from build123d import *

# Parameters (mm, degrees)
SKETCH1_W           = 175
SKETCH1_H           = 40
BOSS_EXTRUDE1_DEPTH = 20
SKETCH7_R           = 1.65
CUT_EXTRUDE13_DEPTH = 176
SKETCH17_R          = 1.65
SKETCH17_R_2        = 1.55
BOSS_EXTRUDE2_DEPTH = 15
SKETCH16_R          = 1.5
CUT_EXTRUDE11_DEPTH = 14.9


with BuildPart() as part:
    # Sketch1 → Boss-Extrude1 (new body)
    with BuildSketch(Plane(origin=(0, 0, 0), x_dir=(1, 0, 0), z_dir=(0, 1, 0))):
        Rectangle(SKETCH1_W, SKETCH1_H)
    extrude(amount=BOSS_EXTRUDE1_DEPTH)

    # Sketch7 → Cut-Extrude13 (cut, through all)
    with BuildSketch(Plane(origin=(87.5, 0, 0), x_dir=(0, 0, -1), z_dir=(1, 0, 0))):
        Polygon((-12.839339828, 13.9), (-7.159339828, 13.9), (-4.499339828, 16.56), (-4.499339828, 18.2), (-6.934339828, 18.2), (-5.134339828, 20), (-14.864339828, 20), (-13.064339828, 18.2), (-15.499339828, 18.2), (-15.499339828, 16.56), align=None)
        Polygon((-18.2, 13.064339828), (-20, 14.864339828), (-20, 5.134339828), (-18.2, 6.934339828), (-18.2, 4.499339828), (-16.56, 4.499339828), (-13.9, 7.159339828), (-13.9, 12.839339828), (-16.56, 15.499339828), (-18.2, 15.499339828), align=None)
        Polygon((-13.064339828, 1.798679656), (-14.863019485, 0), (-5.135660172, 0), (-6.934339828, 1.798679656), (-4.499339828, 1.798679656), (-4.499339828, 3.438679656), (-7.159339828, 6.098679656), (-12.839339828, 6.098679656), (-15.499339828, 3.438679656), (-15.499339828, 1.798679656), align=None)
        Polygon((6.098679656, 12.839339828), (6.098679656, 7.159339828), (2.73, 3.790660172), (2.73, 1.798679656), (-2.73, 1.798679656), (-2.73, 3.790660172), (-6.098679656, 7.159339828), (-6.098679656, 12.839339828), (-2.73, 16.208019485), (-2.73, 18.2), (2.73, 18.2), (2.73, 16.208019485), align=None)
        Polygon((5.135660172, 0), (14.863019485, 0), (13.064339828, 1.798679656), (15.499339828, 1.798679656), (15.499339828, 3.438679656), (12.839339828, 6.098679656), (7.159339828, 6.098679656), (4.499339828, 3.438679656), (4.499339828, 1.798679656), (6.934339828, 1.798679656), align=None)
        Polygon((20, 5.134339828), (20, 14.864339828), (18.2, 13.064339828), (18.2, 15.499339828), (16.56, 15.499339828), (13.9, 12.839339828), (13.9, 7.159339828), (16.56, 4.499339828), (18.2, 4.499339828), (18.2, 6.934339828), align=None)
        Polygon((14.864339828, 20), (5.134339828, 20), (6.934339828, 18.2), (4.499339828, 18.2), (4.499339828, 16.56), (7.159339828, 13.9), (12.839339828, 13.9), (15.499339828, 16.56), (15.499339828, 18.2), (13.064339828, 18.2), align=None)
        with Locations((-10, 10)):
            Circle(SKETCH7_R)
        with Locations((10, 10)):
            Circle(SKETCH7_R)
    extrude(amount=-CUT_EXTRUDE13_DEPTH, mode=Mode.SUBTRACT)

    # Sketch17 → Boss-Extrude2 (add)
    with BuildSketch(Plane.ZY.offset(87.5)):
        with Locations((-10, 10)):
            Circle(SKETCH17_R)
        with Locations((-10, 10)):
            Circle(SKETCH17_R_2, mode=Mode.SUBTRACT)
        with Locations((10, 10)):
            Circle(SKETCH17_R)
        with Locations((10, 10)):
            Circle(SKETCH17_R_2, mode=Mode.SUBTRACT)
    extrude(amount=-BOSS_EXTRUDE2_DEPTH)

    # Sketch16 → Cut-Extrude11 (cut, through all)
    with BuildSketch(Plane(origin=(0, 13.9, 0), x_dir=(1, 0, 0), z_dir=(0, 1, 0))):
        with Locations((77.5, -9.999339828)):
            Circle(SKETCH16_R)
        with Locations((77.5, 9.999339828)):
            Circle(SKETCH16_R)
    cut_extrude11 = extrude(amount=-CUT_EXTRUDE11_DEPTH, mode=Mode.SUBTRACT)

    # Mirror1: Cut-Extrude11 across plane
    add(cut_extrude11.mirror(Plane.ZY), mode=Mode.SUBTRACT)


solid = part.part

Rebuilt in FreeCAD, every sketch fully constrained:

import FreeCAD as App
import Part
import Sketcher

V = App.Vector
Q = App.Units.Quantity

doc = App.newDocument("Part")
body = doc.addObject("PartDesign::Body", "Body")

sketch1 = body.newObject("Sketcher::SketchObject", "Sketch")
sketch1.AttachmentSupport = (doc.getObject("XZ_Plane"), [""])
sketch1.MapMode = "FlatFace"
sketch1.addGeometry(Part.LineSegment(V(-88, -20, 0), V(-88, 20, 0)), False)
sketch1.addGeometry(Part.LineSegment(V(-88, 20, 0), V(88, 20, 0)), False)
sketch1.addGeometry(Part.LineSegment(V(88, 20, 0), V(88, -20, 0)), False)
sketch1.addGeometry(Part.LineSegment(V(88, -20, 0), V(-88, -20, 0)), False)
sketch1.addConstraint(Sketcher.Constraint("Coincident", 0, 2, 1, 1))
sketch1.addConstraint(Sketcher.Constraint("Coincident", 1, 2, 2, 1))
sketch1.addConstraint(Sketcher.Constraint("Coincident", 2, 2, 3, 1))
sketch1.addConstraint(Sketcher.Constraint("Coincident", 3, 2, 0, 1))
sketch1.addConstraint(Sketcher.Constraint("Vertical", 0))
sketch1.addConstraint(Sketcher.Constraint("Horizontal", 1))
sketch1.addConstraint(Sketcher.Constraint("Vertical", 2))
sketch1.addConstraint(Sketcher.Constraint("Horizontal", 3))
sketch1.addConstraint(Sketcher.Constraint("Symmetric", 0, 2, 2, 2, -1, 1))
sketch1.addConstraint(Sketcher.Constraint("DistanceX", 1, 1, 1, 2, Q("175 mm")))
sketch1.addConstraint(Sketcher.Constraint("DistanceY", 0, 1, 0, 2, Q("40 mm")))
pad1 = body.newObject("PartDesign::Pad", "Pad")
pad1.Profile = sketch1
pad1.Length = 20
pad1.Reversed = True

sketch2 = body.newObject("Sketcher::SketchObject", "Sketch001")
sketch2.AttachmentSupport = (doc.getObject("YZ_Plane"), [""])
sketch2.MapMode = "FlatFace"
sketch2.AttachmentOffset = App.Placement(V(0, 0, 87.5), App.Rotation())
sketch2.addGeometry(Part.LineSegment(V(13.9, 12.8, 0), V(13.9, 7.2, 0)), False)
sketch2.addGeometry(Part.LineSegment(V(13.9, 7.2, 0), V(16.6, 4.5, 0)), False)
sketch2.addGeometry(Part.LineSegment(V(16.6, 4.5, 0), V(18.2, 4.5, 0)), False)
sketch2.addGeometry(Part.LineSegment(V(18.2, 4.5, 0), V(18.2, 6.9, 0)), False)
sketch2.addGeometry(Part.LineSegment(V(18.2, 6.9, 0), V(20, 5.1, 0)), False)
sketch2.addGeometry(Part.LineSegment(V(20, 5.1, 0), V(20, 14.9, 0)), False)
sketch2.addGeometry(Part.LineSegment(V(20, 14.9, 0), V(18.2, 13.1, 0)), False)
sketch2.addGeometry(Part.LineSegment(V(18.2, 13.1, 0), V(18.2, 15.5, 0)), False)
sketch2.addGeometry(Part.LineSegment(V(18.2, 15.5, 0), V(16.6, 15.5, 0)), False)
sketch2.addGeometry(Part.LineSegment(V(16.6, 15.5, 0), V(13.9, 12.8, 0)), False)
sketch2.addGeometry(Part.LineSegment(V(13.1, 18.2, 0), V(14.9, 20, 0)), False)
sketch2.addGeometry(Part.LineSegment(V(14.9, 20, 0), V(5.1, 20, 0)), False)
sketch2.addGeometry(Part.LineSegment(V(5.1, 20, 0), V(6.9, 18.2, 0)), False)
sketch2.addGeometry(Part.LineSegment(V(6.9, 18.2, 0), V(4.5, 18.2, 0)), False)
sketch2.addGeometry(Part.LineSegment(V(4.5, 18.2, 0), V(4.5, 16.6, 0)), False)
sketch2.addGeometry(Part.LineSegment(V(4.5, 16.6, 0), V(7.2, 13.9, 0)), False)
sketch2.addGeometry(Part.LineSegment(V(7.2, 13.9, 0), V(12.8, 13.9, 0)), False)
sketch2.addGeometry(Part.LineSegment(V(12.8, 13.9, 0), V(15.5, 16.6, 0)), False)
sketch2.addGeometry(Part.LineSegment(V(15.5, 16.6, 0), V(15.5, 18.2, 0)), False)
sketch2.addGeometry(Part.LineSegment(V(15.5, 18.2, 0), V(13.1, 18.2, 0)), False)
sketch2.addGeometry(Part.LineSegment(V(1.8, 13.1, 0), V(0, 14.9, 0)), False)
sketch2.addGeometry(Part.LineSegment(V(0, 14.9, 0), V(0, 5.1, 0)), False)
sketch2.addGeometry(Part.LineSegment(V(0, 5.1, 0), V(1.8, 6.9, 0)), False)
sketch2.addGeometry(Part.LineSegment(V(1.8, 6.9, 0), V(1.8, 4.5, 0)), False)
sketch2.addGeometry(Part.LineSegment(V(1.8, 4.5, 0), V(3.4, 4.5, 0)), False)
sketch2.addGeometry(Part.LineSegment(V(3.4, 4.5, 0), V(6.1, 7.2, 0)), False)
sketch2.addGeometry(Part.LineSegment(V(6.1, 7.2, 0), V(6.1, 12.8, 0)), False)
sketch2.addGeometry(Part.LineSegment(V(6.1, 12.8, 0), V(3.4, 15.5, 0)), False)
sketch2.addGeometry(Part.LineSegment(V(3.4, 15.5, 0), V(1.8, 15.5, 0)), False)
sketch2.addGeometry(Part.LineSegment(V(1.8, 15.5, 0), V(1.8, 13.1, 0)), False)
sketch2.addGeometry(Part.LineSegment(V(7.2, -6.1, 0), V(12.8, -6.1, 0)), False)
sketch2.addGeometry(Part.LineSegment(V(12.8, -6.1, 0), V(16.2, -2.7, 0)), False)
sketch2.addGeometry(Part.LineSegment(V(16.2, -2.7, 0), V(18.2, -2.7, 0)), False)
sketch2.addGeometry(Part.LineSegment(V(18.2, -2.7, 0), V(18.2, 2.7, 0)), False)
sketch2.addGeometry(Part.LineSegment(V(18.2, 2.7, 0), V(16.2, 2.7, 0)), False)
sketch2.addGeometry(Part.LineSegment(V(16.2, 2.7, 0), V(12.8, 6.1, 0)), False)
sketch2.addGeometry(Part.LineSegment(V(12.8, 6.1, 0), V(7.2, 6.1, 0)), False)
sketch2.addGeometry(Part.LineSegment(V(7.2, 6.1, 0), V(3.8, 2.7, 0)), False)
sketch2.addGeometry(Part.LineSegment(V(3.8, 2.7, 0), V(1.8, 2.7, 0)), False)
sketch2.addGeometry(Part.LineSegment(V(1.8, 2.7, 0), V(1.8, -2.7, 0)), False)
sketch2.addGeometry(Part.LineSegment(V(1.8, -2.7, 0), V(3.8, -2.7, 0)), False)
sketch2.addGeometry(Part.LineSegment(V(3.8, -2.7, 0), V(7.2, -6.1, 0)), False)
sketch2.addGeometry(Part.LineSegment(V(0, -5.1, 0), V(0, -14.9, 0)), False)
sketch2.addGeometry(Part.LineSegment(V(0, -14.9, 0), V(1.8, -13.1, 0)), False)
sketch2.addGeometry(Part.LineSegment(V(1.8, -13.1, 0), V(1.8, -15.5, 0)), False)
sketch2.addGeometry(Part.LineSegment(V(1.8, -15.5, 0), V(3.4, -15.5, 0)), False)
sketch2.addGeometry(Part.LineSegment(V(3.4, -15.5, 0), V(6.1, -12.8, 0)), False)
sketch2.addGeometry(Part.LineSegment(V(6.1, -12.8, 0), V(6.1, -7.2, 0)), False)
sketch2.addGeometry(Part.LineSegment(V(6.1, -7.2, 0), V(3.4, -4.5, 0)), False)
sketch2.addGeometry(Part.LineSegment(V(3.4, -4.5, 0), V(1.8, -4.5, 0)), False)
sketch2.addGeometry(Part.LineSegment(V(1.8, -4.5, 0), V(1.8, -6.9, 0)), False)
sketch2.addGeometry(Part.LineSegment(V(1.8, -6.9, 0), V(0, -5.1, 0)), False)
sketch2.addGeometry(Part.LineSegment(V(5.1, -20, 0), V(14.9, -20, 0)), False)
sketch2.addGeometry(Part.LineSegment(V(14.9, -20, 0), V(13.1, -18.2, 0)), False)
sketch2.addGeometry(Part.LineSegment(V(13.1, -18.2, 0), V(15.5, -18.2, 0)), False)
sketch2.addGeometry(Part.LineSegment(V(15.5, -18.2, 0), V(15.5, -16.6, 0)), False)
sketch2.addGeometry(Part.LineSegment(V(15.5, -16.6, 0), V(12.8, -13.9, 0)), False)
sketch2.addGeometry(Part.LineSegment(V(12.8, -13.9, 0), V(7.2, -13.9, 0)), False)
sketch2.addGeometry(Part.LineSegment(V(7.2, -13.9, 0), V(4.5, -16.6, 0)), False)
sketch2.addGeometry(Part.LineSegment(V(4.5, -16.6, 0), V(4.5, -18.2, 0)), False)
sketch2.addGeometry(Part.LineSegment(V(4.5, -18.2, 0), V(6.9, -18.2, 0)), False)
sketch2.addGeometry(Part.LineSegment(V(6.9, -18.2, 0), V(5.1, -20, 0)), False)
sketch2.addGeometry(Part.LineSegment(V(20, -14.9, 0), V(20, -5.1, 0)), False)
sketch2.addGeometry(Part.LineSegment(V(20, -5.1, 0), V(18.2, -6.9, 0)), False)
sketch2.addGeometry(Part.LineSegment(V(18.2, -6.9, 0), V(18.2, -4.5, 0)), False)
sketch2.addGeometry(Part.LineSegment(V(18.2, -4.5, 0), V(16.6, -4.5, 0)), False)
sketch2.addGeometry(Part.LineSegment(V(16.6, -4.5, 0), V(13.9, -7.2, 0)), False)
sketch2.addGeometry(Part.LineSegment(V(13.9, -7.2, 0), V(13.9, -12.8, 0)), False)
sketch2.addGeometry(Part.LineSegment(V(13.9, -12.8, 0), V(16.6, -15.5, 0)), False)
sketch2.addGeometry(Part.LineSegment(V(16.6, -15.5, 0), V(18.2, -15.5, 0)), False)
sketch2.addGeometry(Part.LineSegment(V(18.2, -15.5, 0), V(18.2, -13.1, 0)), False)
sketch2.addGeometry(Part.LineSegment(V(18.2, -13.1, 0), V(20, -14.9, 0)), False)
sketch2.addGeometry(Part.Circle(V(10, 10, 0), V(0, 0, 1), 1.6), False)
sketch2.addGeometry(Part.Circle(V(10, -10, 0), V(0, 0, 1), 1.6), False)
sketch2.addConstraint(Sketcher.Constraint("Coincident", 0, 2, 1, 1))
sketch2.addConstraint(Sketcher.Constraint("Coincident", 1, 2, 2, 1))
sketch2.addConstraint(Sketcher.Constraint("Coincident", 2, 2, 3, 1))
sketch2.addConstraint(Sketcher.Constraint("Coincident", 3, 2, 4, 1))
sketch2.addConstraint(Sketcher.Constraint("Coincident", 4, 2, 5, 1))
sketch2.addConstraint(Sketcher.Constraint("Coincident", 5, 2, 6, 1))
sketch2.addConstraint(Sketcher.Constraint("Coincident", 6, 2, 7, 1))
sketch2.addConstraint(Sketcher.Constraint("Coincident", 7, 2, 8, 1))
sketch2.addConstraint(Sketcher.Constraint("Coincident", 8, 2, 9, 1))
sketch2.addConstraint(Sketcher.Constraint("Coincident", 9, 2, 0, 1))
sketch2.addConstraint(Sketcher.Constraint("Coincident", 10, 2, 11, 1))
sketch2.addConstraint(Sketcher.Constraint("Coincident", 11, 2, 12, 1))
sketch2.addConstraint(Sketcher.Constraint("Coincident", 12, 2, 13, 1))
sketch2.addConstraint(Sketcher.Constraint("Coincident", 13, 2, 14, 1))
sketch2.addConstraint(Sketcher.Constraint("Coincident", 14, 2, 15, 1))
sketch2.addConstraint(Sketcher.Constraint("Coincident", 15, 2, 16, 1))
sketch2.addConstraint(Sketcher.Constraint("Coincident", 16, 2, 17, 1))
sketch2.addConstraint(Sketcher.Constraint("Coincident", 17, 2, 18, 1))
sketch2.addConstraint(Sketcher.Constraint("Coincident", 18, 2, 19, 1))
sketch2.addConstraint(Sketcher.Constraint("Coincident", 19, 2, 10, 1))
sketch2.addConstraint(Sketcher.Constraint("Coincident", 20, 2, 21, 1))
sketch2.addConstraint(Sketcher.Constraint("Coincident", 21, 2, 22, 1))
sketch2.addConstraint(Sketcher.Constraint("Coincident", 22, 2, 23, 1))
sketch2.addConstraint(Sketcher.Constraint("Coincident", 23, 2, 24, 1))
sketch2.addConstraint(Sketcher.Constraint("Coincident", 24, 2, 25, 1))
sketch2.addConstraint(Sketcher.Constraint("Coincident", 25, 2, 26, 1))
sketch2.addConstraint(Sketcher.Constraint("Coincident", 26, 2, 27, 1))
sketch2.addConstraint(Sketcher.Constraint("Coincident", 27, 2, 28, 1))
sketch2.addConstraint(Sketcher.Constraint("Coincident", 28, 2, 29, 1))
sketch2.addConstraint(Sketcher.Constraint("Coincident", 29, 2, 20, 1))
sketch2.addConstraint(Sketcher.Constraint("Coincident", 30, 2, 31, 1))
sketch2.addConstraint(Sketcher.Constraint("Coincident", 31, 2, 32, 1))
sketch2.addConstraint(Sketcher.Constraint("Coincident", 32, 2, 33, 1))
sketch2.addConstraint(Sketcher.Constraint("Coincident", 33, 2, 34, 1))
sketch2.addConstraint(Sketcher.Constraint("Coincident", 34, 2, 35, 1))
sketch2.addConstraint(Sketcher.Constraint("Coincident", 35, 2, 36, 1))
sketch2.addConstraint(Sketcher.Constraint("Coincident", 36, 2, 37, 1))
sketch2.addConstraint(Sketcher.Constraint("Coincident", 37, 2, 38, 1))
sketch2.addConstraint(Sketcher.Constraint("Coincident", 38, 2, 39, 1))
sketch2.addConstraint(Sketcher.Constraint("Coincident", 39, 2, 40, 1))
sketch2.addConstraint(Sketcher.Constraint("Coincident", 40, 2, 41, 1))
sketch2.addConstraint(Sketcher.Constraint("Coincident", 41, 2, 30, 1))
sketch2.addConstraint(Sketcher.Constraint("Coincident", 42, 2, 43, 1))
sketch2.addConstraint(Sketcher.Constraint("Coincident", 43, 2, 44, 1))
sketch2.addConstraint(Sketcher.Constraint("Coincident", 44, 2, 45, 1))
sketch2.addConstraint(Sketcher.Constraint("Coincident", 45, 2, 46, 1))
sketch2.addConstraint(Sketcher.Constraint("Coincident", 46, 2, 47, 1))
sketch2.addConstraint(Sketcher.Constraint("Coincident", 47, 2, 48, 1))
sketch2.addConstraint(Sketcher.Constraint("Coincident", 48, 2, 49, 1))
sketch2.addConstraint(Sketcher.Constraint("Coincident", 49, 2, 50, 1))
sketch2.addConstraint(Sketcher.Constraint("Coincident", 50, 2, 51, 1))
sketch2.addConstraint(Sketcher.Constraint("Coincident", 51, 2, 42, 1))
sketch2.addConstraint(Sketcher.Constraint("Coincident", 52, 2, 53, 1))
sketch2.addConstraint(Sketcher.Constraint("Coincident", 53, 2, 54, 1))
sketch2.addConstraint(Sketcher.Constraint("Coincident", 54, 2, 55, 1))
sketch2.addConstraint(Sketcher.Constraint("Coincident", 55, 2, 56, 1))
sketch2.addConstraint(Sketcher.Constraint("Coincident", 56, 2, 57, 1))
sketch2.addConstraint(Sketcher.Constraint("Coincident", 57, 2, 58, 1))
sketch2.addConstraint(Sketcher.Constraint("Coincident", 58, 2, 59, 1))
sketch2.addConstraint(Sketcher.Constraint("Coincident", 59, 2, 60, 1))
sketch2.addConstraint(Sketcher.Constraint("Coincident", 60, 2, 61, 1))
sketch2.addConstraint(Sketcher.Constraint("Coincident", 61, 2, 52, 1))
sketch2.addConstraint(Sketcher.Constraint("Coincident", 62, 2, 63, 1))
sketch2.addConstraint(Sketcher.Constraint("Coincident", 63, 2, 64, 1))
sketch2.addConstraint(Sketcher.Constraint("Coincident", 64, 2, 65, 1))
sketch2.addConstraint(Sketcher.Constraint("Coincident", 65, 2, 66, 1))
sketch2.addConstraint(Sketcher.Constraint("Coincident", 66, 2, 67, 1))
sketch2.addConstraint(Sketcher.Constraint("Coincident", 67, 2, 68, 1))
sketch2.addConstraint(Sketcher.Constraint("Coincident", 68, 2, 69, 1))
sketch2.addConstraint(Sketcher.Constraint("Coincident", 69, 2, 70, 1))
sketch2.addConstraint(Sketcher.Constraint("Coincident", 70, 2, 71, 1))
sketch2.addConstraint(Sketcher.Constraint("Coincident", 71, 2, 62, 1))
sketch2.addConstraint(Sketcher.Constraint("Vertical", 0))
sketch2.addConstraint(Sketcher.Constraint("Horizontal", 2))
sketch2.addConstraint(Sketcher.Constraint("Vertical", 3))
sketch2.addConstraint(Sketcher.Constraint("Vertical", 5))
sketch2.addConstraint(Sketcher.Constraint("Vertical", 7))
sketch2.addConstraint(Sketcher.Constraint("Horizontal", 8))
sketch2.addConstraint(Sketcher.Constraint("Horizontal", 11))
sketch2.addConstraint(Sketcher.Constraint("Horizontal", 13))
sketch2.addConstraint(Sketcher.Constraint("Vertical", 14))
sketch2.addConstraint(Sketcher.Constraint("Horizontal", 16))
sketch2.addConstraint(Sketcher.Constraint("Vertical", 18))
sketch2.addConstraint(Sketcher.Constraint("Horizontal", 19))
sketch2.addConstraint(Sketcher.Constraint("Vertical", 21))
sketch2.addConstraint(Sketcher.Constraint("Vertical", 23))
sketch2.addConstraint(Sketcher.Constraint("Horizontal", 24))
sketch2.addConstraint(Sketcher.Constraint("Vertical", 26))
sketch2.addConstraint(Sketcher.Constraint("Horizontal", 28))
sketch2.addConstraint(Sketcher.Constraint("Vertical", 29))
sketch2.addConstraint(Sketcher.Constraint("Horizontal", 30))
sketch2.addConstraint(Sketcher.Constraint("Horizontal", 32))
sketch2.addConstraint(Sketcher.Constraint("Vertical", 33))
sketch2.addConstraint(Sketcher.Constraint("Horizontal", 34))
sketch2.addConstraint(Sketcher.Constraint("Horizontal", 36))
sketch2.addConstraint(Sketcher.Constraint("Horizontal", 38))
sketch2.addConstraint(Sketcher.Constraint("Vertical", 39))
sketch2.addConstraint(Sketcher.Constraint("Horizontal", 40))
sketch2.addConstraint(Sketcher.Constraint("Vertical", 42))
sketch2.addConstraint(Sketcher.Constraint("Vertical", 44))
sketch2.addConstraint(Sketcher.Constraint("Horizontal", 45))
sketch2.addConstraint(Sketcher.Constraint("Vertical", 47))
sketch2.addConstraint(Sketcher.Constraint("Horizontal", 49))
sketch2.addConstraint(Sketcher.Constraint("Vertical", 50))
sketch2.addConstraint(Sketcher.Constraint("Horizontal", 52))
sketch2.addConstraint(Sketcher.Constraint("Horizontal", 54))
sketch2.addConstraint(Sketcher.Constraint("Vertical", 55))
sketch2.addConstraint(Sketcher.Constraint("Horizontal", 57))
sketch2.addConstraint(Sketcher.Constraint("Vertical", 59))
sketch2.addConstraint(Sketcher.Constraint("Horizontal", 60))
sketch2.addConstraint(Sketcher.Constraint("Vertical", 62))
sketch2.addConstraint(Sketcher.Constraint("Vertical", 64))
sketch2.addConstraint(Sketcher.Constraint("Horizontal", 65))
sketch2.addConstraint(Sketcher.Constraint("Vertical", 67))
sketch2.addConstraint(Sketcher.Constraint("Horizontal", 69))
sketch2.addConstraint(Sketcher.Constraint("Vertical", 70))
sketch2.addConstraint(Sketcher.Constraint("Equal", 72, 73))
sketch2.addConstraint(Sketcher.Constraint("Symmetric", 20, 2, 42, 2, -1, 1))
sketch2.addConstraint(Sketcher.Constraint("Symmetric", 72, 3, 73, 3, -1))
sketch2.addConstraint(Sketcher.Constraint("Symmetric", 31, 2, 34, 2, -1))
sketch2.addConstraint(Sketcher.Constraint("Symmetric", 30, 2, 35, 2, -1))
sketch2.addConstraint(Sketcher.Constraint("Symmetric", 37, 2, 40, 2, -1))
sketch2.addConstraint(Sketcher.Constraint("Symmetric", 29, 2, 43, 2, -1))
sketch2.addConstraint(Sketcher.Constraint("Symmetric", 27, 2, 45, 2, -1))
sketch2.addConstraint(Sketcher.Constraint("Symmetric", 26, 2, 46, 2, -1))
sketch2.addConstraint(Sketcher.Constraint("Symmetric", 24, 2, 48, 2, -1))
sketch2.addConstraint(Sketcher.Constraint("Symmetric", 22, 2, 50, 2, -1))
sketch2.addConstraint(Sketcher.Constraint("Symmetric", 21, 2, 51, 2, -1))
sketch2.addConstraint(Sketcher.Constraint("Symmetric", 10, 2, 52, 2, -1))
sketch2.addConstraint(Sketcher.Constraint("Symmetric", 19, 2, 53, 2, -1))
sketch2.addConstraint(Sketcher.Constraint("Symmetric", 17, 2, 55, 2, -1))
sketch2.addConstraint(Sketcher.Constraint("Symmetric", 16, 2, 56, 2, -1))
sketch2.addConstraint(Sketcher.Constraint("Symmetric", 14, 2, 58, 2, -1))
sketch2.addConstraint(Sketcher.Constraint("Symmetric", 12, 2, 60, 2, -1))
sketch2.addConstraint(Sketcher.Constraint("Symmetric", 4, 2, 62, 2, -1))
sketch2.addConstraint(Sketcher.Constraint("Symmetric", 3, 2, 63, 2, -1))
sketch2.addConstraint(Sketcher.Constraint("Symmetric", 1, 2, 65, 2, -1))
sketch2.addConstraint(Sketcher.Constraint("Symmetric", 0, 2, 66, 2, -1))
sketch2.addConstraint(Sketcher.Constraint("Symmetric", 8, 2, 68, 2, -1))
sketch2.addConstraint(Sketcher.Constraint("Symmetric", 6, 2, 70, 2, -1))
sketch2.addConstraint(Sketcher.Constraint("Parallel", 1, 4))
sketch2.addConstraint(Sketcher.Constraint("Perpendicular", 4, 6))
sketch2.addConstraint(Sketcher.Constraint("Parallel", 6, 9))
sketch2.addConstraint(Sketcher.Constraint("Parallel", 9, 10))
sketch2.addConstraint(Sketcher.Constraint("Perpendicular", 10, 12))
sketch2.addConstraint(Sketcher.Constraint("Parallel", 12, 15))
sketch2.addConstraint(Sketcher.Constraint("Perpendicular", 15, 17))
sketch2.addConstraint(Sketcher.Constraint("Perpendicular", 17, 20))
sketch2.addConstraint(Sketcher.Constraint("Perpendicular", 20, 22))
sketch2.addConstraint(Sketcher.Constraint("Parallel", 22, 25))
sketch2.addConstraint(Sketcher.Constraint("Perpendicular", 25, 27))
sketch2.addConstraint(Sketcher.Constraint("Perpendicular", 27, 31))
sketch2.addConstraint(Sketcher.Constraint("Perpendicular", 31, 35))
sketch2.addConstraint(Sketcher.Constraint("Perpendicular", 35, 37))
sketch2.addConstraint(Sketcher.Constraint("Perpendicular", 37, 41))
sketch2.addConstraint(Sketcher.Constraint("Perpendicular", 46, 48))
sketch2.addConstraint(Sketcher.Constraint("Perpendicular", 56, 58))
sketch2.addConstraint(Sketcher.Constraint("Parallel", 58, 61))
sketch2.addConstraint(Sketcher.Constraint("Perpendicular", 66, 68))
sketch2.addConstraint(Sketcher.Constraint("Parallel", 68, 71))
sketch2.addConstraint(Sketcher.Constraint("Horizontal", 14, 2, 17, 2))
sketch2.addConstraint(Sketcher.Constraint("Horizontal", 13, 2, 18, 2))
sketch2.addConstraint(Sketcher.Constraint("Horizontal", 3, 2, 22, 2))
sketch2.addConstraint(Sketcher.Constraint("Horizontal", 2, 2, 23, 2))
sketch2.addConstraint(Sketcher.Constraint("Horizontal", 0, 2, 25, 2))
sketch2.addConstraint(Sketcher.Constraint("Horizontal", 9, 2, 26, 2))
sketch2.addConstraint(Sketcher.Constraint("Horizontal", 8, 2, 27, 2))
sketch2.addConstraint(Sketcher.Constraint("Horizontal", 6, 2, 29, 2))
sketch2.addConstraint(Sketcher.Constraint("Horizontal", 34, 2, 37, 2))
sketch2.addConstraint(Sketcher.Constraint("Vertical", 3, 2, 6, 2))
sketch2.addConstraint(Sketcher.Constraint("Vertical", 1, 2, 8, 2))
sketch2.addConstraint(Sketcher.Constraint("Vertical", 23, 2, 28, 2))
sketch2.addConstraint(Sketcher.Constraint("Vertical", 16, 2, 30, 2))
sketch2.addConstraint(Sketcher.Constraint("Vertical", 7, 2, 32, 2))
sketch2.addConstraint(Sketcher.Constraint("Vertical", 15, 2, 36, 2))
sketch2.addConstraint(Sketcher.Constraint("Vertical", 29, 2, 38, 2))
sketch2.addConstraint(Sketcher.Constraint("Equal", 13, 19))
sketch2.addConstraint(Sketcher.Constraint("Equal", 8, 24))
sketch2.addConstraint(Sketcher.Constraint("Equal", 34, 38))
sketch2.addConstraint(Sketcher.Constraint("Equal", 57, 0))
sketch2.addConstraint(Sketcher.Constraint("Equal", 60, 3))
sketch2.addConstraint(Sketcher.Constraint("Equal", 52, 5))
sketch2.addConstraint(Sketcher.Constraint("Equal", 3, 7))
sketch2.addConstraint(Sketcher.Constraint("Equal", 69, 14))
sketch2.addConstraint(Sketcher.Constraint("Equal", 6, 10))
sketch2.addConstraint(Sketcher.Constraint("Diameter", 72, Q("3.3 mm")))
sketch2.addConstraint(Sketcher.Constraint("DistanceX", -1, 1, 72, 3, Q("10 mm")))
sketch2.addConstraint(Sketcher.Constraint("DistanceY", -1, 1, 72, 3, Q("10 mm")))
sketch2.addConstraint(Sketcher.Constraint("DistanceX", -1, 1, 4, 2, Q("20 mm")))
sketch2.addConstraint(Sketcher.Constraint("DistanceY", -1, 1, 10, 2, Q("20 mm")))
sketch2.addConstraint(Sketcher.Constraint("DistanceX", 2, 1, 2, 2, Q("1.64 mm")))
sketch2.addConstraint(Sketcher.Constraint("DistanceX", 11, 2, 11, 1, Q("9.73 mm")))
sketch2.addConstraint(Sketcher.Constraint("DistanceX", 16, 1, 16, 2, Q("5.68 mm")))
sketch2.addConstraint(Sketcher.Constraint("DistanceY", 33, 1, 33, 2, Q("5.46 mm")))
sketch2.addConstraint(Sketcher.Constraint("DistanceX", -1, 1, 0, 2, Q("13.9 mm")))
sketch2.addConstraint(Sketcher.Constraint("DistanceX", -1, 1, 2, 2, Q("18.2 mm")))
sketch2.addConstraint(Sketcher.Constraint("DistanceX", 32, 1, 32, 2, Q("1.991981 mm")))
sketch2.addConstraint(Sketcher.Constraint("DistanceY", 21, 2, 21, 1, Q("9.727359 mm")))
sketch2.addConstraint(Sketcher.Constraint("DistanceY", -1, 1, 0, 2, Q("7.15934 mm")))
pocket1 = body.newObject("PartDesign::Pocket", "Pocket")
pocket1.Profile = sketch2
pocket1.Type = "ThroughAll"

sketch3 = body.newObject("Sketcher::SketchObject", "Sketch002")
sketch3.AttachmentSupport = (doc.getObject("YZ_Plane"), [""])
sketch3.MapMode = "FlatFace"
sketch3.AttachmentOffset = App.Placement(V(0, 0, -87.5), App.Rotation())
sketch3.addGeometry(Part.Circle(V(10, -10, 0), V(0, 0, 1), 1.6), False)
sketch3.addGeometry(Part.Circle(V(10, -10, 0), V(0, 0, 1), 1.6), False)
sketch3.addGeometry(Part.Circle(V(10, 10, 0), V(0, 0, 1), 1.6), False)
sketch3.addGeometry(Part.Circle(V(10, 10, 0), V(0, 0, 1), 1.6), False)
sketch3.addConstraint(Sketcher.Constraint("Coincident", 1, 3, 0, 3))
sketch3.addConstraint(Sketcher.Constraint("Coincident", 3, 3, 2, 3))
sketch3.addConstraint(Sketcher.Constraint("Equal", 0, 2))
sketch3.addConstraint(Sketcher.Constraint("Equal", 1, 3))
sketch3.addConstraint(Sketcher.Constraint("Symmetric", 0, 3, 2, 3, -1))
sketch3.addConstraint(Sketcher.Constraint("Diameter", 0, Q("3.3 mm")))
sketch3.addConstraint(Sketcher.Constraint("Diameter", 1, Q("3.1 mm")))
sketch3.addConstraint(Sketcher.Constraint("DistanceX", -1, 1, 0, 3, Q("10 mm")))
sketch3.addConstraint(Sketcher.Constraint("DistanceY", 0, 3, -1, 1, Q("10 mm")))
pad2 = body.newObject("PartDesign::Pad", "Pad001")
pad2.Profile = sketch3
pad2.Length = 15

sketch4 = body.newObject("Sketcher::SketchObject", "Sketch003")
sketch4.AttachmentSupport = (doc.getObject("XZ_Plane"), [""])
sketch4.MapMode = "FlatFace"
sketch4.AttachmentOffset = App.Placement(V(0, 0, -13.9), App.Rotation())
sketch4.addGeometry(Part.Circle(V(77.5, 10, 0), V(0, 0, 1), 1.5), False)
sketch4.addGeometry(Part.Circle(V(77.5, -10, 0), V(0, 0, 1), 1.5), False)
sketch4.addConstraint(Sketcher.Constraint("Equal", 0, 1))
sketch4.addConstraint(Sketcher.Constraint("Symmetric", 0, 3, 1, 3, -1))
sketch4.addConstraint(Sketcher.Constraint("Diameter", 0, Q("3 mm")))
sketch4.addConstraint(Sketcher.Constraint("DistanceX", -1, 1, 0, 3, Q("77.5 mm")))
sketch4.addConstraint(Sketcher.Constraint("DistanceY", -1, 1, 0, 3, Q("9.99934 mm")))
pocket2 = body.newObject("PartDesign::Pocket", "Pocket001")
pocket2.Profile = sketch4
pocket2.Type = "ThroughAll"
pocket2.Reversed = True
doc.recompute()

mirrored = body.newObject("PartDesign::Mirrored", "Mirrored")
mirrored.Originals = [pocket2]
mirrored.MirrorPlane = (doc.getObject("YZ_Plane"), [""])
body.Tip = mirrored

doc.recompute()
